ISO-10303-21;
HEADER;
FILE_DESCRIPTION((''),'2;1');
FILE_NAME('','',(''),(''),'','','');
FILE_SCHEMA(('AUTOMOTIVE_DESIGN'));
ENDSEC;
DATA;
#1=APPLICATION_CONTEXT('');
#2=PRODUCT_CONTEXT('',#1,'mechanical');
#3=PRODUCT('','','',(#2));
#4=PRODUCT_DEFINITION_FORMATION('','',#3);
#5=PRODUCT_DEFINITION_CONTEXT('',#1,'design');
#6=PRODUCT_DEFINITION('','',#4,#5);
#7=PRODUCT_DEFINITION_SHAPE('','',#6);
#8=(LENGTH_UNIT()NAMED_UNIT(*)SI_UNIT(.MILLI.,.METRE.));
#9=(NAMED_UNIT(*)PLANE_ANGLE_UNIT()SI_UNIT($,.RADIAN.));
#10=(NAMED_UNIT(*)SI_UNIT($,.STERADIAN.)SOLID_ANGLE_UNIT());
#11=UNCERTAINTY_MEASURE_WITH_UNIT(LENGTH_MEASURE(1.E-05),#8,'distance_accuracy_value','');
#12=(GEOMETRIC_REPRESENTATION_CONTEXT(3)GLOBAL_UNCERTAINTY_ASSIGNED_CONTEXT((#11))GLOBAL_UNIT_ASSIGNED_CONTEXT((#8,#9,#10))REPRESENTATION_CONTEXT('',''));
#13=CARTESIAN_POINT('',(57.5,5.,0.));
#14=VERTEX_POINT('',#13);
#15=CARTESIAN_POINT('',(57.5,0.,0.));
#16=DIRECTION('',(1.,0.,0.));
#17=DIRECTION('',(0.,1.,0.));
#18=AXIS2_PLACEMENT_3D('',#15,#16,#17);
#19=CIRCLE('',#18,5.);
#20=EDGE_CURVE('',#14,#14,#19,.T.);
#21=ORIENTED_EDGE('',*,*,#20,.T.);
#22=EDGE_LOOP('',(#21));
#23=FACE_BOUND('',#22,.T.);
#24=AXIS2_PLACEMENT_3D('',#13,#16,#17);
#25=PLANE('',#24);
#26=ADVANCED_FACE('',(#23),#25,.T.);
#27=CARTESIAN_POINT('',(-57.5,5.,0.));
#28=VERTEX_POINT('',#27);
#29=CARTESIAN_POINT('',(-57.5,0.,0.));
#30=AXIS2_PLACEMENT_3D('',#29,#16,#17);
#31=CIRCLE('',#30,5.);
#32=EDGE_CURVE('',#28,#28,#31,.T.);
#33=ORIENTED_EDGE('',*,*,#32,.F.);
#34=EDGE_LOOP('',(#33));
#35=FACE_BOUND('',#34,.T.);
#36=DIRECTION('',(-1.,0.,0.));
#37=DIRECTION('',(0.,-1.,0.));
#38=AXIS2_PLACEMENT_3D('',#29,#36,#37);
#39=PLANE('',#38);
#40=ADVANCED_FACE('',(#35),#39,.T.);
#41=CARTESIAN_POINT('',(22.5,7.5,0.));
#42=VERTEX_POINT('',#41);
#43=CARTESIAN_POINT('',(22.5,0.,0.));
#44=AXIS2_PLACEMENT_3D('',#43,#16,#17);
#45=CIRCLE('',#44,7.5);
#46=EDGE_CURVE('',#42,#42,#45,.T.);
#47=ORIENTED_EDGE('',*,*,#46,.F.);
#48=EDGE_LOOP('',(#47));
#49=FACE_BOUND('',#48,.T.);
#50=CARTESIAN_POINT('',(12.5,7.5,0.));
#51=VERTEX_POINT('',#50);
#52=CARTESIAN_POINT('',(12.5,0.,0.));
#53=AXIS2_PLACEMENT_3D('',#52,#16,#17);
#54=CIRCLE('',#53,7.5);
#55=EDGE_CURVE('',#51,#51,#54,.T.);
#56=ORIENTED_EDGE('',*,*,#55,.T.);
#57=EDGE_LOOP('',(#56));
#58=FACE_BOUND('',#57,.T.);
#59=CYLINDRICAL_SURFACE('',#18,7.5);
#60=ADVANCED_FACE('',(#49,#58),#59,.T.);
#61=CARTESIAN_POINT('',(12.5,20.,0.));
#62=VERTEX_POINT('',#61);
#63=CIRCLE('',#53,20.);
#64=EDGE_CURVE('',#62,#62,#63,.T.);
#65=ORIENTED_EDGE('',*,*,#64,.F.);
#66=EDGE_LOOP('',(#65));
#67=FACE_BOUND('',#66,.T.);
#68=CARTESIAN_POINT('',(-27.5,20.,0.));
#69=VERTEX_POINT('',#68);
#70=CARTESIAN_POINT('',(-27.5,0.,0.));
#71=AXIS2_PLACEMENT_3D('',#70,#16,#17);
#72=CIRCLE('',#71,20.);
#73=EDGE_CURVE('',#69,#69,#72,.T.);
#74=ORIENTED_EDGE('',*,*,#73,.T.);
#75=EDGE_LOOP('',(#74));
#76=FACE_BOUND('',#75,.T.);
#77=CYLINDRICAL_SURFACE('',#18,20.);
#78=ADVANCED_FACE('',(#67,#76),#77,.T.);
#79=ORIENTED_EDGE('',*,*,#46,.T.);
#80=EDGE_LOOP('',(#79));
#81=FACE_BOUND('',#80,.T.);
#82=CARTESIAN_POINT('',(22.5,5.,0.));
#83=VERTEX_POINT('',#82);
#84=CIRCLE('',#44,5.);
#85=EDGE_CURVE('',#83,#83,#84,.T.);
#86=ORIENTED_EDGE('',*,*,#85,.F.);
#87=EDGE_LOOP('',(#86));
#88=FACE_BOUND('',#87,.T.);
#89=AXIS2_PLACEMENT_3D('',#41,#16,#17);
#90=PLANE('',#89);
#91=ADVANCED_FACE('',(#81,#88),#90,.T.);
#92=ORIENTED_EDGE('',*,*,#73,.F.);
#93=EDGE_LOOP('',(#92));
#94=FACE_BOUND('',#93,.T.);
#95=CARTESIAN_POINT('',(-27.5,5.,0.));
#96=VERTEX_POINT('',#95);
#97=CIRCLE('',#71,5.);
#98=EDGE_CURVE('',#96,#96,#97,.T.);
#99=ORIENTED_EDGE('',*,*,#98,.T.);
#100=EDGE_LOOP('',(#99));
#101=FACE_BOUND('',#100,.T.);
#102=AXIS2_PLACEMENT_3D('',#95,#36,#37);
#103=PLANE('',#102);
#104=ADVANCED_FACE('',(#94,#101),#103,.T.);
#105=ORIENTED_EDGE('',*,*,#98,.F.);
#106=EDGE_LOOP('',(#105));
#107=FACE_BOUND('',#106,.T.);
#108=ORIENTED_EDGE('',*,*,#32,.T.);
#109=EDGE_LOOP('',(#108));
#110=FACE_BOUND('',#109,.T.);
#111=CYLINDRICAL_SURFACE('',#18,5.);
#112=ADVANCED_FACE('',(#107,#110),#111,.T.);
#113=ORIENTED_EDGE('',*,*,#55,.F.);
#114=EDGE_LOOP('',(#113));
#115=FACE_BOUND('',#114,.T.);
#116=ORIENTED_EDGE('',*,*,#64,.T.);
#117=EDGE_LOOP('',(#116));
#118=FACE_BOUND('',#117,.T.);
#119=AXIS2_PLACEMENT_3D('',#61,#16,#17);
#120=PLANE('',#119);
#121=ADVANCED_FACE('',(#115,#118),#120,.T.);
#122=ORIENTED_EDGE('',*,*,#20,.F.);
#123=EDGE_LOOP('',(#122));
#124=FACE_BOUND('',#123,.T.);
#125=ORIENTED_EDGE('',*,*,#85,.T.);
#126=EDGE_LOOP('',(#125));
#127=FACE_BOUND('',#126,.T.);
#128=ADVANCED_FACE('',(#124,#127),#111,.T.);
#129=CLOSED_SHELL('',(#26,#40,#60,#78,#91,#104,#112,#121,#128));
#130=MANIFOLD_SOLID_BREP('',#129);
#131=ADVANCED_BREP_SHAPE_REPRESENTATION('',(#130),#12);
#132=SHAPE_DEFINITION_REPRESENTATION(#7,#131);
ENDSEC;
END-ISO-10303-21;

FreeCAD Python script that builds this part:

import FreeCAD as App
import Part
import Sketcher

V = App.Vector


def add_polygon(sketch, points):
    """Adds a closed chain of lines whose ends are joined by coincident constraints."""
    first, n = sketch.GeometryCount, len(points)
    for a, b in zip(points, points[1:] + points[:1]):
        sketch.addGeometry(Part.LineSegment(App.Vector(*a, 0), App.Vector(*b, 0)), False)
    for i in range(n):
        sketch.addConstraint(Sketcher.Constraint("Coincident", first + i, 2, first + (i + 1) % n, 1))

doc = App.newDocument("Part")
body = doc.addObject("PartDesign::Body", "Body")

# Sketch on XY plane
sketch1 = body.newObject("Sketcher::SketchObject", "Sketch")
sketch1.AttachmentSupport = (doc.getObject("XY_Plane"), [""])
sketch1.MapMode = "FlatFace"
add_polygon(sketch1, [(-57.5, 0), (57.5, 0), (57.5, 5), (22.5, 5), (22.5, 7.5), (12.5, 7.5), (12.5, 20), (-27.5, 20), (-27.5, 5), (-57.5, 5)])  # lines 0-9
sketch1.addConstraint([
    Sketcher.Constraint("Horizontal", 0),
    Sketcher.Constraint("Vertical", 1),
    Sketcher.Constraint("Horizontal", 2),
    Sketcher.Constraint("Vertical", 3),
    Sketcher.Constraint("Horizontal", 4),
    Sketcher.Constraint("Vertical", 5),
    Sketcher.Constraint("Horizontal", 6),
    Sketcher.Constraint("Vertical", 7),
    Sketcher.Constraint("Horizontal", 8),
    Sketcher.Constraint("Vertical", 9),
    Sketcher.Constraint("Symmetric", 0, 2, 9, 2, -1, 1),
    Sketcher.Constraint("Horizontal", 2, 2, 7, 2),
    Sketcher.Constraint("DistanceX", 0, 1, 0, 2, 115.0),
    Sketcher.Constraint("DistanceX", 2, 2, 2, 1, 35.0),
    Sketcher.Constraint("DistanceX", 4, 2, 4, 1, 10.0),
    Sketcher.Constraint("DistanceX", 6, 2, 6, 1, 40.0),
    Sketcher.Constraint("DistanceY", 1, 1, 1, 2, 5.0),
    Sketcher.Constraint("DistanceY", 7, 2, 7, 1, 15.0),
    Sketcher.Constraint("DistanceY", 3, 1, 3, 2, 2.5),
])
revolution = body.newObject("PartDesign::Revolution", "Revolution")
revolution.Profile = sketch1
revolution.ReferenceAxis = (sketch1, ["H_Axis"])
revolution.Angle = 360

doc.recompute()
